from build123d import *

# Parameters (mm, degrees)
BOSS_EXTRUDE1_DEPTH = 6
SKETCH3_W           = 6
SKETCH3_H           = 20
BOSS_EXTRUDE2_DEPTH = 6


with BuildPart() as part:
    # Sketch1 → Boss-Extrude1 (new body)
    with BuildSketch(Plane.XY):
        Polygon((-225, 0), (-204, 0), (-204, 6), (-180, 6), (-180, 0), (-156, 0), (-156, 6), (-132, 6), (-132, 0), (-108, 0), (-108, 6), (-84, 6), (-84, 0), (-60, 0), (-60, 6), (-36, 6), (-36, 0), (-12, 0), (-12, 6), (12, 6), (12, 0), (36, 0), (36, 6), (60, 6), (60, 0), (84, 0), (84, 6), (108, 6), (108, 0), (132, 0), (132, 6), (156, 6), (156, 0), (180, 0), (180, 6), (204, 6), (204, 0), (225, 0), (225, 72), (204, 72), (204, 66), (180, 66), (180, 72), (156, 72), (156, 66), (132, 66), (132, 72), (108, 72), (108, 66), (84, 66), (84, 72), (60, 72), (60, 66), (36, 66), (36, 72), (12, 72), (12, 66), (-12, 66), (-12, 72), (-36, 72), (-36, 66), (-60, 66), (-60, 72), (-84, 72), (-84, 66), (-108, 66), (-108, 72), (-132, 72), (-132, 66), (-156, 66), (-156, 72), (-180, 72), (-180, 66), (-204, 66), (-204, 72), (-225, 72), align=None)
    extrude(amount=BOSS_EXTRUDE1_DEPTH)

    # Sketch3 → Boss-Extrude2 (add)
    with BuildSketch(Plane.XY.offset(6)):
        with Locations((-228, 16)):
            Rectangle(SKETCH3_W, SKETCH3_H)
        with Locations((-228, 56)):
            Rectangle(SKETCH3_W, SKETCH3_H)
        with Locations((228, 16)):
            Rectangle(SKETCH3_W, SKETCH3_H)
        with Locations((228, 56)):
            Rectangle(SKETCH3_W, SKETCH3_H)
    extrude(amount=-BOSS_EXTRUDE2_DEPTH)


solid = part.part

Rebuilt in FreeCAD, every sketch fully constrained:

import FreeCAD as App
import Part
import Sketcher
from FreeCAD import Vector


def add_polygon(sketch, points):
    """Adds a closed chain of lines whose ends are joined by coincident constraints."""
    first, n = sketch.GeometryCount, len(points)
    for a, b in zip(points, points[1:] + points[:1]):
        sketch.addGeometry(Part.LineSegment(App.Vector(*a, 0), App.Vector(*b, 0)), False)
    for i in range(n):
        sketch.addConstraint(Sketcher.Constraint("Coincident", first + i, 2, first + (i + 1) % n, 1))

doc = App.newDocument("Part")
body = doc.addObject("PartDesign::Body", "Body")

# Sketch on XY plane
sketch1 = body.newObject("Sketcher::SketchObject", "Sketch")
sketch1.AttachmentSupport = (doc.getObject("XY_Plane"), [""])
sketch1.MapMode = "FlatFace"
add_polygon(sketch1, [(-225, 0), (-204, 0), (-204, 6), (-180, 6), (-180, 0), (-156, 0), (-156, 6), (-132, 6), (-132, 0), (-108, 0), (-108, 6), (-84, 6), (-84, 0), (-60, 0), (-60, 6), (-36, 6), (-36, 0), (-12, 0), (-12, 6), (12, 6), (12, 0), (36, 0), (36, 6), (60, 6), (60, 0), (84, 0), (84, 6), (108, 6), (108, 0), (132, 0), (132, 6), (156, 6), (156, 0), (180, 0), (180, 6), (204, 6), (204, 0), (225, 0), (225, 72), (204, 72), (204, 66), (180, 66), (180, 72), (156, 72), (156, 66), (132, 66), (132, 72), (108, 72), (108, 66), (84, 66), (84, 72), (60, 72), (60, 66), (36, 66), (36, 72), (12, 72), (12, 66), (-12, 66), (-12, 72), (-36, 72), (-36, 66), (-60, 66), (-60, 72), (-84, 72), (-84, 66), (-108, 66), (-108, 72), (-132, 72), (-132, 66), (-156, 66), (-156, 72), (-180, 72), (-180, 66), (-204, 66), (-204, 72), (-225, 72)])  # lines 0-75
sketch1.addConstraint([
    Sketcher.Constraint("Horizontal", 0),
    Sketcher.Constraint("Vertical", 1),
    Sketcher.Constraint("Horizontal", 2),
    Sketcher.Constraint("Vertical", 3),
    Sketcher.Constraint("Horizontal", 4),
    Sketcher.Constraint("Vertical", 5),
    Sketcher.Constraint("Horizontal", 6),
    Sketcher.Constraint("Vertical", 7),
    Sketcher.Constraint("Horizontal", 8),
    Sketcher.Constraint("Vertical", 9),
    Sketcher.Constraint("Horizontal", 10),
    Sketcher.Constraint("Vertical", 11),
    Sketcher.Constraint("Horizontal", 12),
    Sketcher.Constraint("Vertical", 13),
    Sketcher.Constraint("Horizontal", 14),
    Sketcher.Constraint("Vertical", 15),
    Sketcher.Constraint("Horizontal", 16),
    Sketcher.Constraint("Vertical", 17),
    Sketcher.Constraint("Horizontal", 18),
    Sketcher.Constraint("Vertical", 19),
    Sketcher.Constraint("Horizontal", 20),
    Sketcher.Constraint("Vertical", 21),
    Sketcher.Constraint("Horizontal", 22),
    Sketcher.Constraint("Vertical", 23),
    Sketcher.Constraint("Horizontal", 24),
    Sketcher.Constraint("Vertical", 25),
    Sketcher.Constraint("Horizontal", 26),
    Sketcher.Constraint("Vertical", 27),
    Sketcher.Constraint("Horizontal", 28),
    Sketcher.Constraint("Vertical", 29),
    Sketcher.Constraint("Horizontal", 30),
    Sketcher.Constraint("Vertical", 31),
    Sketcher.Constraint("Horizontal", 32),
    Sketcher.Constraint("Vertical", 33),
    Sketcher.Constraint("Horizontal", 34),
    Sketcher.Constraint("Vertical", 35),
    Sketcher.Constraint("Horizontal", 36),
    Sketcher.Constraint("Vertical", 37),
    Sketcher.Constraint("Horizontal", 38),
    Sketcher.Constraint("Vertical", 39),
    Sketcher.Constraint("Horizontal", 40),
    Sketcher.Constraint("Vertical", 41),
    Sketcher.Constraint("Horizontal", 42),
    Sketcher.Constraint("Vertical", 43),
    Sketcher.Constraint("Horizontal", 44),
    Sketcher.Constraint("Vertical", 45),
    Sketcher.Constraint("Horizontal", 46),
    Sketcher.Constraint("Vertical", 47),
    Sketcher.Constraint("Horizontal", 48),
    Sketcher.Constraint("Vertical", 49),
    Sketcher.Constraint("Horizontal", 50),
    Sketcher.Constraint("Vertical", 51),
    Sketcher.Constraint("Horizontal", 52),
    Sketcher.Constraint("Vertical", 53),
    Sketcher.Constraint("Horizontal", 54),
    Sketcher.Constraint("Vertical", 55),
    Sketcher.Constraint("Horizontal", 56),
    Sketcher.Constraint("Vertical", 57),
    Sketcher.Constraint("Horizontal", 58),
    Sketcher.Constraint("Vertical", 59),
    Sketcher.Constraint("Horizontal", 60),
    Sketcher.Constraint("Vertical", 61),
    Sketcher.Constraint("Horizontal", 62),
    Sketcher.Constraint("Vertical", 63),
    Sketcher.Constraint("Horizontal", 64),
    Sketcher.Constraint("Vertical", 65),
    Sketcher.Constraint("Horizontal", 66),
    Sketcher.Constraint("Vertical", 67),
    Sketcher.Constraint("Horizontal", 68),
    Sketcher.Constraint("Vertical", 69),
    Sketcher.Constraint("Horizontal", 70),
    Sketcher.Constraint("Vertical", 71),
    Sketcher.Constraint("Horizontal", 72),
    Sketcher.Constraint("Vertical", 73),
    Sketcher.Constraint("Horizontal", 74),
    Sketcher.Constraint("Vertical", 75),
    Sketcher.Constraint("Symmetric", 16, 2, 19, 2, -1, 1),
    Sketcher.Constraint("Symmetric", 12, 2, 23, 2, -1, 1),
    Sketcher.Constraint("Symmetric", 8, 2, 27, 2, -1, 1),
    Sketcher.Constraint("Symmetric", 4, 2, 31, 2, -1, 1),
    Sketcher.Constraint("Symmetric", 0, 2, 35, 2, -1, 1),
    Sketcher.Constraint("Symmetric", 15, 2, 20, 2, -2),
    Sketcher.Constraint("Symmetric", 11, 2, 24, 2, -2),
    Sketcher.Constraint("Symmetric", 7, 2, 28, 2, -2),
    Sketcher.Constraint("Symmetric", 3, 2, 32, 2, -2),
    Sketcher.Constraint("Symmetric", 54, 2, 57, 2, -2),
    Sketcher.Constraint("Symmetric", 52, 2, 59, 2, -2),
    Sketcher.Constraint("Symmetric", 50, 2, 61, 2, -2),
    Sketcher.Constraint("Symmetric", 48, 2, 63, 2, -2),
    Sketcher.Constraint("Symmetric", 46, 2, 65, 2, -2),
    Sketcher.Constraint("Symmetric", 44, 2, 67, 2, -2),
    Sketcher.Constraint("Symmetric", 42, 2, 69, 2, -2),
    Sketcher.Constraint("Symmetric", 40, 2, 71, 2, -2),
    Sketcher.Constraint("Symmetric", 38, 2, 73, 2, -2),
    Sketcher.Constraint("Symmetric", 36, 2, 75, 2, -2),
    Sketcher.Constraint("Horizontal", 2, 2, 5, 2),
    Sketcher.Constraint("Horizontal", 6, 2, 9, 2),
    Sketcher.Constraint("Horizontal", 10, 2, 13, 2),
    Sketcher.Constraint("Horizontal", 14, 2, 17, 2),
    Sketcher.Constraint("Horizontal", 18, 2, 21, 2),
    Sketcher.Constraint("Horizontal", 22, 2, 25, 2),
    Sketcher.Constraint("Horizontal", 26, 2, 29, 2),
    Sketcher.Constraint("Horizontal", 30, 2, 33, 2),
    Sketcher.Constraint("Horizontal", 38, 2, 41, 2),
    Sketcher.Constraint("Horizontal", 40, 2, 43, 2),
    Sketcher.Constraint("Horizontal", 42, 2, 45, 2),
    Sketcher.Constraint("Horizontal", 44, 2, 47, 2),
    Sketcher.Constraint("Horizontal", 46, 2, 49, 2),
    Sketcher.Constraint("Horizontal", 48, 2, 51, 2),
    Sketcher.Constraint("Horizontal", 50, 2, 53, 2),
    Sketcher.Constraint("Horizontal", 52, 2, 55, 2),
    Sketcher.Constraint("Vertical", 35, 2, 38, 2),
    Sketcher.Constraint("Vertical", 33, 2, 40, 2),
    Sketcher.Constraint("Vertical", 31, 2, 42, 2),
    Sketcher.Constraint("Vertical", 29, 2, 44, 2),
    Sketcher.Constraint("Vertical", 27, 2, 46, 2),
    Sketcher.Constraint("Vertical", 25, 2, 48, 2),
    Sketcher.Constraint("Vertical", 23, 2, 50, 2),
    Sketcher.Constraint("Vertical", 21, 2, 52, 2),
    Sketcher.Constraint("Vertical", 19, 2, 54, 2),
    Sketcher.Constraint("Equal", 2, 4),
    Sketcher.Constraint("Equal", 4, 6),
    Sketcher.Constraint("Equal", 6, 8),
    Sketcher.Constraint("Equal", 8, 10),
    Sketcher.Constraint("Equal", 10, 12),
    Sketcher.Constraint("Equal", 12, 14),
    Sketcher.Constraint("Equal", 14, 16),
    Sketcher.Constraint("Equal", 16, 18),
    Sketcher.Constraint("Equal", 35, 39),
    Sketcher.Constraint("DistanceX", 0, 1, 0, 2, 21.0),
    Sketcher.Constraint("DistanceX", 2, 1, 2, 2, 24.0),
    Sketcher.Constraint("DistanceY", 1, 1, 1, 2, 6.0),
    Sketcher.Constraint("DistanceY", 37, 1, 37, 2, 72.0),
])
pad1 = body.newObject("PartDesign::Pad", "Pad")
pad1.Profile = sketch1
pad1.Length = 6

# Sketch on XY plane
sketch2 = body.newObject("Sketcher::SketchObject", "Sketch001")
sketch2.AttachmentSupport = (doc.getObject("XY_Plane"), [""])
sketch2.MapMode = "FlatFace"
sketch2.AttachmentOffset = App.Placement(Vector(0, 0, 6), App.Rotation())
add_polygon(sketch2, [(-231, 26), (-231, 6), (-225, 6), (-225, 26)])  # lines 0-3
add_polygon(sketch2, [(-231, 66), (-231, 46), (-225, 46), (-225, 66)])  # lines 4-7
add_polygon(sketch2, [(225, 26), (225, 6), (231, 6), (231, 26)])  # lines 8-11
add_polygon(sketch2, [(225, 66), (225, 46), (231, 46), (231, 66)])  # lines 12-15
sketch2.addConstraint([
    Sketcher.Constraint("Vertical", 0),
    Sketcher.Constraint("Horizontal", 1),
    Sketcher.Constraint("Vertical", 2),
    Sketcher.Constraint("Horizontal", 3),
    Sketcher.Constraint("Vertical", 4),
    Sketcher.Constraint("Horizontal", 5),
    Sketcher.Constraint("Vertical", 6),
    Sketcher.Constraint("Horizontal", 7),
    Sketcher.Constraint("Vertical", 8),
    Sketcher.Constraint("Horizontal", 9),
    Sketcher.Constraint("Vertical", 10),
    Sketcher.Constraint("Horizontal", 11),
    Sketcher.Constraint("Vertical", 12),
    Sketcher.Constraint("Horizontal", 13),
    Sketcher.Constraint("Vertical", 14),
    Sketcher.Constraint("Horizontal", 15),
    Sketcher.Constraint("Symmetric", 1, 2, 8, 2, -2),
    Sketcher.Constraint("Symmetric", 3, 2, 10, 2, -2),
    Sketcher.Constraint("Symmetric", 5, 2, 12, 2, -2),
    Sketcher.Constraint("Symmetric", 7, 2, 14, 2, -2),
    Sketcher.Constraint("Vertical", 3, 2, 4, 2),
    Sketcher.Constraint("Vertical", 2, 2, 5, 2),
    Sketcher.Constraint("Equal", 2, 4),
    Sketcher.Constraint("DistanceX", 1, 1, 1, 2, 6.0),
    Sketcher.Constraint("DistanceY", 0, 2, 0, 1, 20.0),
    Sketcher.Constraint("DistanceX", 0, 2, -1, 1, 231.0),
    Sketcher.Constraint("DistanceY", -1, 1, 0, 2, 6.0),
    Sketcher.Constraint("DistanceY", -1, 1, 4, 2, 46.0),
])
pad2 = body.newObject("PartDesign::Pad", "Pad001")
pad2.Profile = sketch2
pad2.Length = 6
pad2.Reversed = True

doc.recompute()
